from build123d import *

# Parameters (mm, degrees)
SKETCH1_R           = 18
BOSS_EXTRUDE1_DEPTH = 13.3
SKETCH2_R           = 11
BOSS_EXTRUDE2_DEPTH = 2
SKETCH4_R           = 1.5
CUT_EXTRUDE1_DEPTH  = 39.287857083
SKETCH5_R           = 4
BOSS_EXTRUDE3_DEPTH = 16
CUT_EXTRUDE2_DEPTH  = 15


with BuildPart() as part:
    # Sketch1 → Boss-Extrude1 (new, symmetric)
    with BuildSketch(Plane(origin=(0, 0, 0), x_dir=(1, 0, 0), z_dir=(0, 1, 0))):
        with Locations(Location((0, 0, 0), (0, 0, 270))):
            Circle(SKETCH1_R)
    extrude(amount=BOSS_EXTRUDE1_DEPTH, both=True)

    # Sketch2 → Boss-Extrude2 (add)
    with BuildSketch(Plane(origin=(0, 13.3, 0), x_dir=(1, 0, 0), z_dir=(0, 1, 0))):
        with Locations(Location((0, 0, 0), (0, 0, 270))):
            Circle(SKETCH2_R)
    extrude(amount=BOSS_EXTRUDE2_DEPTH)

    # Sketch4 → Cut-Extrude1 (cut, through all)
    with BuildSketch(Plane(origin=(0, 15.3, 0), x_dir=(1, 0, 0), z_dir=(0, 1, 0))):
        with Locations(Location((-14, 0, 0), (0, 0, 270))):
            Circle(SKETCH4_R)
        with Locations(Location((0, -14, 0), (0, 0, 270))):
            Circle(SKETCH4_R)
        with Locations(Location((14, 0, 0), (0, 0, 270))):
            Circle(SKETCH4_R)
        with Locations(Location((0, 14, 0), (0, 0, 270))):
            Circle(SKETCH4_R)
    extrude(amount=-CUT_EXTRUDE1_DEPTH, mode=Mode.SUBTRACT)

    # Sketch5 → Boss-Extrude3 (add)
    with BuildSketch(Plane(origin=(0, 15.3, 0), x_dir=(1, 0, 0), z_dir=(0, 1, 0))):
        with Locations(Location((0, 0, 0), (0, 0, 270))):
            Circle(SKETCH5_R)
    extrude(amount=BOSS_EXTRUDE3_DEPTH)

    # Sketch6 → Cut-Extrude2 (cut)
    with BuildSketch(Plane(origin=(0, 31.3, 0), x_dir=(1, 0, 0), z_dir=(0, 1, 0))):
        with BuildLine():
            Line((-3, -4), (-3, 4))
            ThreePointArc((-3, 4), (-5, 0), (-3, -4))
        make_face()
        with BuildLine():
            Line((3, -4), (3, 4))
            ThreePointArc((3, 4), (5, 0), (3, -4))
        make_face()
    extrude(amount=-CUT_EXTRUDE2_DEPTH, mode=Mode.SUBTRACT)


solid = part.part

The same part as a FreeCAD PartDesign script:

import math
import FreeCAD as App
import Part
import Sketcher
from FreeCAD import Vector

doc = App.newDocument("Part")
body = doc.addObject("PartDesign::Body", "Body")

# Sketch on XZ plane
sketch1 = body.newObject("Sketcher::SketchObject", "Sketch")
sketch1.AttachmentSupport = (doc.getObject("XZ_Plane"), [""])
sketch1.MapMode = "FlatFace"
sketch1.addGeometry(Part.Circle(Vector(0, 0, 0), Vector(0, 0, 1), 18), False)
sketch1.addConstraint([
    Sketcher.Constraint("Coincident", 0, 3, -1, 1),
    Sketcher.Constraint("Diameter", 0, 36.0),
])
pad1 = body.newObject("PartDesign::Pad", "Pad")
pad1.Profile = sketch1
pad1.Length = 26.6
pad1.Midplane = True

# Sketch on XZ plane
sketch2 = body.newObject("Sketcher::SketchObject", "Sketch001")
sketch2.AttachmentSupport = (doc.getObject("XZ_Plane"), [""])
sketch2.MapMode = "FlatFace"
sketch2.AttachmentOffset = App.Placement(Vector(0, 0, -13.3), App.Rotation())
sketch2.addGeometry(Part.Circle(Vector(0, 0, 0), Vector(0, 0, 1), 11), False)
sketch2.addConstraint([
    Sketcher.Constraint("Coincident", 0, 3, -1, 1),
    Sketcher.Constraint("Diameter", 0, 22.0),
])
pad2 = body.newObject("PartDesign::Pad", "Pad001")
pad2.Profile = sketch2
pad2.Length = 2
pad2.Reversed = True

# Sketch on XZ plane
sketch3 = body.newObject("Sketcher::SketchObject", "Sketch002")
sketch3.AttachmentSupport = (doc.getObject("XZ_Plane"), [""])
sketch3.MapMode = "FlatFace"
sketch3.AttachmentOffset = App.Placement(Vector(0, 0, -15.3), App.Rotation())
sketch3.addGeometry([
    Part.Circle(Vector(-14, 0, 0), Vector(0, 0, 1), 1.5),
    Part.Circle(Vector(0, 14, 0), Vector(0, 0, 1), 1.5),
    Part.Circle(Vector(14, 0, 0), Vector(0, 0, 1), 1.5),
    Part.Circle(Vector(0, -14, 0), Vector(0, 0, 1), 1.5),
], False)
sketch3.addConstraint([
    Sketcher.Constraint("Equal", 0, 1),
    Sketcher.Constraint("Equal", 1, 2),
    Sketcher.Constraint("Equal", 2, 3),
    Sketcher.Constraint("Symmetric", 0, 3, 2, 3, -1, 1),
    Sketcher.Constraint("Symmetric", 1, 3, 3, 3, -1, 1),
    Sketcher.Constraint("PointOnObject", 0, 3, -1),
    Sketcher.Constraint("PointOnObject", 1, 3, -2),
    Sketcher.Constraint("Diameter", 0, 3.0),
    Sketcher.Constraint("DistanceX", 0, 3, -1, 1, 14.0),
    Sketcher.Constraint("DistanceY", -1, 1, 1, 3, 14.0),
])
pocket1 = body.newObject("PartDesign::Pocket", "Pocket")
pocket1.Profile = sketch3
pocket1.Type = "ThroughAll"
pocket1.Reversed = True

# Sketch on XZ plane
sketch4 = body.newObject("Sketcher::SketchObject", "Sketch003")
sketch4.AttachmentSupport = (doc.getObject("XZ_Plane"), [""])
sketch4.MapMode = "FlatFace"
sketch4.AttachmentOffset = App.Placement(Vector(0, 0, -15.3), App.Rotation())
sketch4.addGeometry(Part.Circle(Vector(0, 0, 0), Vector(0, 0, 1), 4), False)
sketch4.addConstraint([
    Sketcher.Constraint("Coincident", 0, 3, -1, 1),
    Sketcher.Constraint("Diameter", 0, 8.0),
])
pad3 = body.newObject("PartDesign::Pad", "Pad002")
pad3.Profile = sketch4
pad3.Length = 16
pad3.Reversed = True

# Sketch on XZ plane
sketch5 = body.newObject("Sketcher::SketchObject", "Sketch004")
sketch5.AttachmentSupport = (doc.getObject("XZ_Plane"), [""])
sketch5.MapMode = "FlatFace"
sketch5.AttachmentOffset = App.Placement(Vector(0, 0, -31.3), App.Rotation())
sketch5.addGeometry([
    Part.LineSegment(Vector(-3, 4, 0), Vector(-3, -4, 0)),
    Part.ArcOfCircle(Part.Circle(Vector(0, 0, 0), Vector(0, 0, 1), 5), math.radians(127), math.radians(233)),
    Part.LineSegment(Vector(3, -4, 0), Vector(3, 4, 0)),
    Part.ArcOfCircle(Part.Circle(Vector(0, 0, 0), Vector(0, 0, 1), 5), math.radians(-53), math.radians(53)),
], False)
sketch5.addConstraint([
    Sketcher.Constraint("Coincident", 0, 1, 1, 1),
    Sketcher.Constraint("Coincident", 1, 2, 0, 2),
    Sketcher.Constraint("Coincident", 2, 1, 3, 1),
    Sketcher.Constraint("Coincident", 3, 2, 2, 2),
    Sketcher.Constraint("Vertical", 0),
    Sketcher.Constraint("Vertical", 2),
    Sketcher.Constraint("Coincident", 1, 3, -1, 1),
    Sketcher.Constraint("Coincident", 3, 3, -1, 1),
    Sketcher.Constraint("Equal", 1, 3),
    Sketcher.Constraint("Horizontal", 1, 2, 2, 1),
    Sketcher.Constraint("Radius", 1, 5.0),
    Sketcher.Constraint("DistanceY", 0, 2, 0, 1, 8.0),
])
pocket2 = body.newObject("PartDesign::Pocket", "Pocket001")
pocket2.Profile = sketch5
pocket2.Length = 15
pocket2.Reversed = True

doc.recompute()
